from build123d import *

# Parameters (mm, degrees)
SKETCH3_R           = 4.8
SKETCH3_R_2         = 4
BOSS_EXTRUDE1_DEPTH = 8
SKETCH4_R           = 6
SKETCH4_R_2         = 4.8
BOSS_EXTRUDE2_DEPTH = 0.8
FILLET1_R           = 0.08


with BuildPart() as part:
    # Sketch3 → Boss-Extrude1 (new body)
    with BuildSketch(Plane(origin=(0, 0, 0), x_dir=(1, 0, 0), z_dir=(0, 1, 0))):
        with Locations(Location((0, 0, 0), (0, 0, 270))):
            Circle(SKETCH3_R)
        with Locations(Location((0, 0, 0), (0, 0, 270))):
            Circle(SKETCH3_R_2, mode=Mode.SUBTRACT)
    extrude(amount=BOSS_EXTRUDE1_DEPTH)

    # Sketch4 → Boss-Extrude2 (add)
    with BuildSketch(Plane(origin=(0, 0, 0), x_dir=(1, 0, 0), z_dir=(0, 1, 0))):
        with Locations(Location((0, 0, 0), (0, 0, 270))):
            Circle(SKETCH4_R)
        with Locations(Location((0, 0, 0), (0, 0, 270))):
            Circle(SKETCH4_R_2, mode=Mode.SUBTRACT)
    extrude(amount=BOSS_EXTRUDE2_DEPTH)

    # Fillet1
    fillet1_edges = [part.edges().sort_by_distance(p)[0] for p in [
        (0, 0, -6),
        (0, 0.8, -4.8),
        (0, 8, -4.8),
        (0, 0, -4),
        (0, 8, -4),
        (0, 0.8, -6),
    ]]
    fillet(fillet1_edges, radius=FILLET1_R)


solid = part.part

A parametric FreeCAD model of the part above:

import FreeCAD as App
import Part
import Sketcher
from FreeCAD import Vector


def edges_at(feature, points):
    """Names of the edges that pass closest to the given points."""
    edges = feature.Shape.Edges
    near = lambda p: min(range(len(edges)), key=lambda i: edges[i].distToShape(Part.Vertex(*p))[0])
    return sorted({f"Edge{near(p) + 1}" for p in points})

doc = App.newDocument("Part")
body = doc.addObject("PartDesign::Body", "Body")

# Sketch on XZ plane
sketch1 = body.newObject("Sketcher::SketchObject", "Sketch")
sketch1.AttachmentSupport = (doc.getObject("XZ_Plane"), [""])
sketch1.MapMode = "FlatFace"
sketch1.addGeometry([
    Part.Circle(Vector(0, 0, 0), Vector(0, 0, 1), 4.8),
    Part.Circle(Vector(0, 0, 0), Vector(0, 0, 1), 4),
], False)
sketch1.addConstraint([
    Sketcher.Constraint("Coincident", 0, 3, -1, 1),
    Sketcher.Constraint("Coincident", 1, 3, -1, 1),
    Sketcher.Constraint("Diameter", 1, 8.0),
    Sketcher.Constraint("Diameter", 0, 9.6),
])
pad1 = body.newObject("PartDesign::Pad", "Pad")
pad1.Profile = sketch1
pad1.Length = 8
pad1.Reversed = True

# Sketch on XZ plane
sketch2 = body.newObject("Sketcher::SketchObject", "Sketch001")
sketch2.AttachmentSupport = (doc.getObject("XZ_Plane"), [""])
sketch2.MapMode = "FlatFace"
sketch2.addGeometry([
    Part.Circle(Vector(0, 0, 0), Vector(0, 0, 1), 6),
    Part.Circle(Vector(0, 0, 0), Vector(0, 0, 1), 4.8),
], False)
sketch2.addConstraint([
    Sketcher.Constraint("Coincident", 0, 3, -1, 1),
    Sketcher.Constraint("Coincident", 1, 3, -1, 1),
    Sketcher.Constraint("Diameter", 0, 12.0),
    Sketcher.Constraint("Diameter", 1, 9.6),
])
pad2 = body.newObject("PartDesign::Pad", "Pad001")
pad2.Profile = sketch2
pad2.Length = 0.8
pad2.Reversed = True
doc.recompute()

fillet = body.newObject("PartDesign::Fillet", "Fillet")
fillet.Base = (pad2, edges_at(pad2, [
    (0, 0, -6),
    (0, 0.8, -4.8),
    (0, 8, -4.8),
    (0, 0, -4),
    (0, 8, -4),
    (0, 0.8, -6),
]))
fillet.Radius = 0.08

doc.recompute()
